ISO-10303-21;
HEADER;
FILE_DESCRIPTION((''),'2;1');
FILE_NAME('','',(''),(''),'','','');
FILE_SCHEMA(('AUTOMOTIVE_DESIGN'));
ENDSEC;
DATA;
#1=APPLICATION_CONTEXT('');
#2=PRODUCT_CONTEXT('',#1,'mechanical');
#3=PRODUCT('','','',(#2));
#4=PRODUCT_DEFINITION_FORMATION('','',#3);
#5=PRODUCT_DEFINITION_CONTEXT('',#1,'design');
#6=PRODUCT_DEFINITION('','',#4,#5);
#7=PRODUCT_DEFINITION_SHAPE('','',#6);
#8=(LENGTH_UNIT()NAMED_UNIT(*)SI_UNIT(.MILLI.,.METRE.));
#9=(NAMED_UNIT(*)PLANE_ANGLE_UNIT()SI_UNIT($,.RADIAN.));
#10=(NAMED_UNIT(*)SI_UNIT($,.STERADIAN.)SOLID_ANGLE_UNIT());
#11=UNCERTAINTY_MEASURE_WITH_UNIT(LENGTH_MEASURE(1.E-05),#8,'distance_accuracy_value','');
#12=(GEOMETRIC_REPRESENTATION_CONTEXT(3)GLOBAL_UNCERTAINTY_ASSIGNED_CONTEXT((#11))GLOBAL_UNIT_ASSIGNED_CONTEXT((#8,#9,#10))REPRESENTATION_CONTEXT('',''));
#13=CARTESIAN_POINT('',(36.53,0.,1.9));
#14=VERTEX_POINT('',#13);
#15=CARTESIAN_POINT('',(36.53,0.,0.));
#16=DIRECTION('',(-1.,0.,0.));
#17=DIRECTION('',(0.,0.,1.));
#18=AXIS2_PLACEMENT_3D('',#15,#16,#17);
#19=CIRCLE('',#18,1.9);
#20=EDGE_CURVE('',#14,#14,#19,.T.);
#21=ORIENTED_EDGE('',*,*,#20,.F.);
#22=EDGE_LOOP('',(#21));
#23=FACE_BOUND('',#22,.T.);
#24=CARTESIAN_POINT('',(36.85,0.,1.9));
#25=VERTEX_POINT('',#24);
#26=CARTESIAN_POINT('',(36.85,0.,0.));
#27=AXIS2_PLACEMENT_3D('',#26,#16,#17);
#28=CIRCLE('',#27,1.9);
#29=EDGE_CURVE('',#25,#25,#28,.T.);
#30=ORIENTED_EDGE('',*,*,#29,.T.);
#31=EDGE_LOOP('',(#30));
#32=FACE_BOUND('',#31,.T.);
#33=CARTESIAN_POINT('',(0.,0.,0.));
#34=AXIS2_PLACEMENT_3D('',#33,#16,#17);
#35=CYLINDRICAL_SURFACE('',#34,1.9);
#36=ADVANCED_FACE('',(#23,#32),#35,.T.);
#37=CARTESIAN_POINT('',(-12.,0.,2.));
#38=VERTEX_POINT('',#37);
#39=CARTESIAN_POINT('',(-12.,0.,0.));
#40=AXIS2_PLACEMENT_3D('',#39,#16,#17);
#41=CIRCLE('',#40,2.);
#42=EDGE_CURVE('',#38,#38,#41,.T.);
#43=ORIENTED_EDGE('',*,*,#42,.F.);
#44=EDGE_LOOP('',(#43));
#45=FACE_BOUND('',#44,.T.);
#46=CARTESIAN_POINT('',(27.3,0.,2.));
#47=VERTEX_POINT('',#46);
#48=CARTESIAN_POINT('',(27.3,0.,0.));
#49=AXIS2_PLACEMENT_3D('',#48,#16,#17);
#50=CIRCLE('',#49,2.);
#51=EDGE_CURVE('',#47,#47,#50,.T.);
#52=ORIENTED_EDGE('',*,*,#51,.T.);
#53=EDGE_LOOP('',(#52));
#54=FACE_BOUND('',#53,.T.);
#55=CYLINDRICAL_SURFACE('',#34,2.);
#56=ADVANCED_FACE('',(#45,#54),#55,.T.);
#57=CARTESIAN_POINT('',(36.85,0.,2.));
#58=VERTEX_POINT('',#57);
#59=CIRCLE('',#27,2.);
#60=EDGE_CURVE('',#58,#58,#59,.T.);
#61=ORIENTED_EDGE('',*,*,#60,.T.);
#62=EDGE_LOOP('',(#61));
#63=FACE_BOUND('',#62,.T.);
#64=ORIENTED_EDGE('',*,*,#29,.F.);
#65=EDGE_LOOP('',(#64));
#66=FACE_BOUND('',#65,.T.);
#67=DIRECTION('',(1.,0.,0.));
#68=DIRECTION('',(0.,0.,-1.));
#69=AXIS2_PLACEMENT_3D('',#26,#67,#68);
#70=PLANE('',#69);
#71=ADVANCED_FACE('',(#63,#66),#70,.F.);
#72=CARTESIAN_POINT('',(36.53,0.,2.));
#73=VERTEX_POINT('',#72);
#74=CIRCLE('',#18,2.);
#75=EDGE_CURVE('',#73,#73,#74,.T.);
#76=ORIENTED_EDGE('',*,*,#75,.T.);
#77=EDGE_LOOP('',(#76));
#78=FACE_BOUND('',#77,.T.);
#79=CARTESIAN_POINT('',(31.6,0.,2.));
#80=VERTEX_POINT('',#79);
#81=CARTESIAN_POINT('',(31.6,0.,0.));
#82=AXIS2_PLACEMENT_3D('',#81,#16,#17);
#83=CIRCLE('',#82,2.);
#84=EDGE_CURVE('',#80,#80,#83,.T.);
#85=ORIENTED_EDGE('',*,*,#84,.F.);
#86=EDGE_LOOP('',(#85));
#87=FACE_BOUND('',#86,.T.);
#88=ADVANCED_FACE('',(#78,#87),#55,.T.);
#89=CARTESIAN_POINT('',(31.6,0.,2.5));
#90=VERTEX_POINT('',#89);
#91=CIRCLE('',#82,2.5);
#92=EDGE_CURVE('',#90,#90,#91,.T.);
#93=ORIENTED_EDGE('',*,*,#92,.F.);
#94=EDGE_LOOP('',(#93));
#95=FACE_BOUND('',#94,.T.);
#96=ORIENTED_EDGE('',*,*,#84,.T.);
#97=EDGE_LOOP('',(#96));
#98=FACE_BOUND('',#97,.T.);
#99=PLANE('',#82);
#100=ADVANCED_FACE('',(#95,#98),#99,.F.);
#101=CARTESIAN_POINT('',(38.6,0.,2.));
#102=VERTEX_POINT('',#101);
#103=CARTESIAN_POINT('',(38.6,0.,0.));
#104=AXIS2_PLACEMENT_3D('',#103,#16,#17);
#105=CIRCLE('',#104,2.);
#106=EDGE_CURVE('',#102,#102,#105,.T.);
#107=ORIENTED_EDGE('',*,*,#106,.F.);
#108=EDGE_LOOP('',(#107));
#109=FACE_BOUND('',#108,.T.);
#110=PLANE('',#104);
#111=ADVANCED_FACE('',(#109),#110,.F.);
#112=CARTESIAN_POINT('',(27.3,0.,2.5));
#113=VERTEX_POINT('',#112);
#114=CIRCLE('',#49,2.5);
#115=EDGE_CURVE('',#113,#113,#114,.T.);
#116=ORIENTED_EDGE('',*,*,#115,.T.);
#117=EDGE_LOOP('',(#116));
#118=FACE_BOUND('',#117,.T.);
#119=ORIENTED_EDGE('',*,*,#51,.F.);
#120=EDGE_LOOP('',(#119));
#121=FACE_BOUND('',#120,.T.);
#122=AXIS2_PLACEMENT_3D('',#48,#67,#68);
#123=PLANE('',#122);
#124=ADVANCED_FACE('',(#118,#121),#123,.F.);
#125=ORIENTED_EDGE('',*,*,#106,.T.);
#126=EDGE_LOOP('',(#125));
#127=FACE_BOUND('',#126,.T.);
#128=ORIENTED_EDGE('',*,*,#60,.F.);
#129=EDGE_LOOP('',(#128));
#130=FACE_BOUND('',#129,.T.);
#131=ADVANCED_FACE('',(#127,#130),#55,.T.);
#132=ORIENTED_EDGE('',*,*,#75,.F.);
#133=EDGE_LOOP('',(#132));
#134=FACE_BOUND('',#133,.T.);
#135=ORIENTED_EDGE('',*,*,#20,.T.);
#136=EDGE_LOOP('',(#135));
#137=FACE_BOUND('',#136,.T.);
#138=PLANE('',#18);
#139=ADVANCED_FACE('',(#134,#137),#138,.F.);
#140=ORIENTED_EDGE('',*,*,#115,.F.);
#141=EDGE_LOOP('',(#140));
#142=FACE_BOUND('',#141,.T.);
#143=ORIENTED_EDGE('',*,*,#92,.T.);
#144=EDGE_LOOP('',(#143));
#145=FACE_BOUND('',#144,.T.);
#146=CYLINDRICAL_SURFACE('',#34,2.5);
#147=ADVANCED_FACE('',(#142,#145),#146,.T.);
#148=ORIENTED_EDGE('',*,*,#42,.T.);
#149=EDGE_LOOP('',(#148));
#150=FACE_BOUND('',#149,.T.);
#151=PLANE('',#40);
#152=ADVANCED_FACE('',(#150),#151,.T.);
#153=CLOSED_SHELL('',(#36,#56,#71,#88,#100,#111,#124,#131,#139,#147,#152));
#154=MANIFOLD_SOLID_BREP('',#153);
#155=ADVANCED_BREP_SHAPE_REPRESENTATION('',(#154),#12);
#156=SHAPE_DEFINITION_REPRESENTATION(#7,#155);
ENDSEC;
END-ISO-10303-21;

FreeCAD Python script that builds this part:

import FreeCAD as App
import Part
import Sketcher

V = App.Vector


def add_polygon(sketch, points):
    """Adds a closed chain of lines whose ends are joined by coincident constraints."""
    first, n = sketch.GeometryCount, len(points)
    for a, b in zip(points, points[1:] + points[:1]):
        sketch.addGeometry(Part.LineSegment(App.Vector(*a, 0), App.Vector(*b, 0)), False)
    for i in range(n):
        sketch.addConstraint(Sketcher.Constraint("Coincident", first + i, 2, first + (i + 1) % n, 1))

doc = App.newDocument("Part")
body = doc.addObject("PartDesign::Body", "Body")

sketch1 = doc.addObject("Sketcher::SketchObject", "Sketch")
body.addObject(sketch1)
sketch1.AttachmentSupport = (doc.XY_Plane, [""])
sketch1.MapMode = "FlatFace"
add_polygon(sketch1, [(27.3, 2.5), (27.3, 2), (-12, 2), (-12, 0), (38.6, 0), (38.6, 2), (36.85, 2), (36.85, 1.9), (36.53, 1.9), (36.53, 2), (31.6, 2), (31.6, 2.5)])
sketch1.addConstraint(Sketcher.Constraint("Vertical", 0))
sketch1.addConstraint(Sketcher.Constraint("Horizontal", 1))
sketch1.addConstraint(Sketcher.Constraint("Vertical", 2))
sketch1.addConstraint(Sketcher.Constraint("Horizontal", 3))
sketch1.addConstraint(Sketcher.Constraint("Vertical", 4))
sketch1.addConstraint(Sketcher.Constraint("Horizontal", 5))
sketch1.addConstraint(Sketcher.Constraint("Vertical", 6))
sketch1.addConstraint(Sketcher.Constraint("Horizontal", 7))
sketch1.addConstraint(Sketcher.Constraint("Vertical", 8))
sketch1.addConstraint(Sketcher.Constraint("Horizontal", 9))
sketch1.addConstraint(Sketcher.Constraint("Vertical", 10))
sketch1.addConstraint(Sketcher.Constraint("Horizontal", 11))
sketch1.addConstraint(Sketcher.Constraint("PointOnObject", 2, 2, -1))
sketch1.addConstraint(Sketcher.Constraint("Horizontal", 1, 2, 4, 2))
sketch1.addConstraint(Sketcher.Constraint("Horizontal", 5, 2, 8, 2))
sketch1.addConstraint(Sketcher.Constraint("DistanceY", 2, 2, 2, 1, 2.0))
sketch1.addConstraint(Sketcher.Constraint("DistanceX", 1, 2, 1, 1, 39.3))
sketch1.addConstraint(Sketcher.Constraint("DistanceX", 3, 1, 3, 2, 50.6))
sketch1.addConstraint(Sketcher.Constraint("DistanceX", 11, 2, 11, 1, 4.3))
sketch1.addConstraint(Sketcher.Constraint("DistanceY", 0, 2, 0, 1, 0.5))
sketch1.addConstraint(Sketcher.Constraint("DistanceY", 6, 2, 6, 1, 0.1))
sketch1.addConstraint(Sketcher.Constraint("DistanceX", 1, 2, -1, 1, 12.0))
sketch1.addConstraint(Sketcher.Constraint("DistanceX", 5, 2, 5, 1, 1.75))
sketch1.addConstraint(Sketcher.Constraint("DistanceX", 7, 2, 7, 1, 0.32))
revolution = doc.addObject("PartDesign::Revolution", "Revolution")
body.addObject(revolution)
revolution.Profile = sketch1
revolution.ReferenceAxis = (sketch1, ["H_Axis"])
revolution.Angle = 360

doc.recompute()
